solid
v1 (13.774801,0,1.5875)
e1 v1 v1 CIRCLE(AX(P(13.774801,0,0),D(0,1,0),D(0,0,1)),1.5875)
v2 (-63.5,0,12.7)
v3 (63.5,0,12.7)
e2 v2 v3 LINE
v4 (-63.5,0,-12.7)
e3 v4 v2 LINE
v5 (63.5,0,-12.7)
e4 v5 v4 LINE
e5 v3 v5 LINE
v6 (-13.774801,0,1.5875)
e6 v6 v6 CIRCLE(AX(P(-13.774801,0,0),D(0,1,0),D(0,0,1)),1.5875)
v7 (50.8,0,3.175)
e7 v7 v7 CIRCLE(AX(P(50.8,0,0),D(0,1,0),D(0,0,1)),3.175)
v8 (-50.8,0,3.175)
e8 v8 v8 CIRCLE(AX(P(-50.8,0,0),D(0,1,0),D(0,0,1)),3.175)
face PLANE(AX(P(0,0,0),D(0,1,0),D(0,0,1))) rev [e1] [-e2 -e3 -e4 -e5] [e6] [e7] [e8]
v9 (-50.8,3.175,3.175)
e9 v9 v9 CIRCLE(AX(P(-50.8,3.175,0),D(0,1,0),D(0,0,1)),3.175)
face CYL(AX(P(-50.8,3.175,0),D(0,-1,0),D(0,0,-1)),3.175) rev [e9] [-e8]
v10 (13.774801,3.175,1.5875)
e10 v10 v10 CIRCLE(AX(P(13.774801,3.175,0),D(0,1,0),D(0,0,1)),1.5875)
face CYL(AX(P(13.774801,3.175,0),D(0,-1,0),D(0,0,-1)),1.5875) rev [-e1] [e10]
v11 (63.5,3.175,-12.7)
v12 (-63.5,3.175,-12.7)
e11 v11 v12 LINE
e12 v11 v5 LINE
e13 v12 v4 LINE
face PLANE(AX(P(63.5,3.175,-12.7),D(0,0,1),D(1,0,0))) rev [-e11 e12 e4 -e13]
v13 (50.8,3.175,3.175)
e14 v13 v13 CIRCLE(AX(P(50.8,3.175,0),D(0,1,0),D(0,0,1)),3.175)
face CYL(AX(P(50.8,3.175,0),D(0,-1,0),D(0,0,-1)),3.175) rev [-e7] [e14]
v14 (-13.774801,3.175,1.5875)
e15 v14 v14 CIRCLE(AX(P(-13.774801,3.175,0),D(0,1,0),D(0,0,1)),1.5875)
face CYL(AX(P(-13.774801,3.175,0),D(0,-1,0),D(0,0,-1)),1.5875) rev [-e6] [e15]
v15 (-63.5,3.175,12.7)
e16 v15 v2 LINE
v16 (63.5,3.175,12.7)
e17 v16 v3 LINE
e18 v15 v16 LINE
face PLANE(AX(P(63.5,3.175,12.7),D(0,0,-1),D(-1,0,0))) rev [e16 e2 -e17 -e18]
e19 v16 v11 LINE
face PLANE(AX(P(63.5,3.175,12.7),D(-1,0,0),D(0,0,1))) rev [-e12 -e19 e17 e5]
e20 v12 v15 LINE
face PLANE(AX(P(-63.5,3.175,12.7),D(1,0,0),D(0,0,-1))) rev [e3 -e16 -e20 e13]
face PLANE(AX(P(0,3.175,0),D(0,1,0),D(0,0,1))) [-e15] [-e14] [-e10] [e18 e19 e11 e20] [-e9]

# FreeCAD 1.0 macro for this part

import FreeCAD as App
import Part
import Sketcher
from FreeCAD import Vector
Q = App.Units.Quantity

doc = App.newDocument("Part")
body = doc.addObject("PartDesign::Body", "Body")

# Sketch on XZ plane
sketch1 = body.newObject("Sketcher::SketchObject", "Sketch")
sketch1.AttachmentSupport = (doc.getObject("XZ_Plane"), [""])
sketch1.MapMode = "FlatFace"
sketch1.addGeometry([
    Part.LineSegment(Vector(-63.5, -12.7, 0), Vector(-63.5, 12.7, 0)),  # 0
    Part.LineSegment(Vector(-63.5, 12.7, 0), Vector(63.5, 12.7, 0)),  # 1
    Part.LineSegment(Vector(63.5, 12.7, 0), Vector(63.5, -12.7, 0)),  # 2
    Part.LineSegment(Vector(63.5, -12.7, 0), Vector(-63.5, -12.7, 0)),  # 3
    Part.Circle(Vector(-50.8, 0, 0), Vector(0, 0, 1), 3.2),  # 4
    Part.Circle(Vector(-13.8, 0, 0), Vector(0, 0, 1), 1.6),  # 5
    Part.Circle(Vector(13.8, 0, 0), Vector(0, 0, 1), 1.6),  # 6
    Part.Circle(Vector(50.8, 0, 0), Vector(0, 0, 1), 3.2),  # 7
], False)
sketch1.addConstraint([
    Sketcher.Constraint("Coincident", 0, 2, 1, 1),
    Sketcher.Constraint("Coincident", 1, 2, 2, 1),
    Sketcher.Constraint("Coincident", 2, 2, 3, 1),
    Sketcher.Constraint("Coincident", 3, 2, 0, 1),
    Sketcher.Constraint("Vertical", 0),
    Sketcher.Constraint("Horizontal", 1),
    Sketcher.Constraint("Vertical", 2),
    Sketcher.Constraint("Horizontal", 3),
    Sketcher.Constraint("Equal", 5, 6),
    Sketcher.Constraint("Equal", 4, 7),
    Sketcher.Constraint("Symmetric", 5, 3, 6, 3, -1, 1),
    Sketcher.Constraint("Symmetric", 4, 3, 7, 3, -1, 1),
    Sketcher.Constraint("Symmetric", 0, 2, 2, 2, -1, 1),
    Sketcher.Constraint("PointOnObject", 4, 3, -1),
    Sketcher.Constraint("PointOnObject", 5, 3, -1),
    Sketcher.Constraint("Diameter", 4, Q("0.25 in")),
    Sketcher.Constraint("DistanceX", 1, 1, 1, 2, Q("5 in")),
    Sketcher.Constraint("DistanceY", 0, 1, 0, 2, Q("1 in")),
    Sketcher.Constraint("Diameter", 5, Q("0.125 in")),
    Sketcher.Constraint("DistanceX", 4, 3, -1, 1, Q("2 in")),
    Sketcher.Constraint("DistanceX", 5, 3, -1, 1, 13.774801),
])
pad1 = body.newObject("PartDesign::Pad", "Pad")
pad1.Profile = sketch1
pad1.Length = Q("0.125 in")
pad1.Reversed = True

doc.recompute()
